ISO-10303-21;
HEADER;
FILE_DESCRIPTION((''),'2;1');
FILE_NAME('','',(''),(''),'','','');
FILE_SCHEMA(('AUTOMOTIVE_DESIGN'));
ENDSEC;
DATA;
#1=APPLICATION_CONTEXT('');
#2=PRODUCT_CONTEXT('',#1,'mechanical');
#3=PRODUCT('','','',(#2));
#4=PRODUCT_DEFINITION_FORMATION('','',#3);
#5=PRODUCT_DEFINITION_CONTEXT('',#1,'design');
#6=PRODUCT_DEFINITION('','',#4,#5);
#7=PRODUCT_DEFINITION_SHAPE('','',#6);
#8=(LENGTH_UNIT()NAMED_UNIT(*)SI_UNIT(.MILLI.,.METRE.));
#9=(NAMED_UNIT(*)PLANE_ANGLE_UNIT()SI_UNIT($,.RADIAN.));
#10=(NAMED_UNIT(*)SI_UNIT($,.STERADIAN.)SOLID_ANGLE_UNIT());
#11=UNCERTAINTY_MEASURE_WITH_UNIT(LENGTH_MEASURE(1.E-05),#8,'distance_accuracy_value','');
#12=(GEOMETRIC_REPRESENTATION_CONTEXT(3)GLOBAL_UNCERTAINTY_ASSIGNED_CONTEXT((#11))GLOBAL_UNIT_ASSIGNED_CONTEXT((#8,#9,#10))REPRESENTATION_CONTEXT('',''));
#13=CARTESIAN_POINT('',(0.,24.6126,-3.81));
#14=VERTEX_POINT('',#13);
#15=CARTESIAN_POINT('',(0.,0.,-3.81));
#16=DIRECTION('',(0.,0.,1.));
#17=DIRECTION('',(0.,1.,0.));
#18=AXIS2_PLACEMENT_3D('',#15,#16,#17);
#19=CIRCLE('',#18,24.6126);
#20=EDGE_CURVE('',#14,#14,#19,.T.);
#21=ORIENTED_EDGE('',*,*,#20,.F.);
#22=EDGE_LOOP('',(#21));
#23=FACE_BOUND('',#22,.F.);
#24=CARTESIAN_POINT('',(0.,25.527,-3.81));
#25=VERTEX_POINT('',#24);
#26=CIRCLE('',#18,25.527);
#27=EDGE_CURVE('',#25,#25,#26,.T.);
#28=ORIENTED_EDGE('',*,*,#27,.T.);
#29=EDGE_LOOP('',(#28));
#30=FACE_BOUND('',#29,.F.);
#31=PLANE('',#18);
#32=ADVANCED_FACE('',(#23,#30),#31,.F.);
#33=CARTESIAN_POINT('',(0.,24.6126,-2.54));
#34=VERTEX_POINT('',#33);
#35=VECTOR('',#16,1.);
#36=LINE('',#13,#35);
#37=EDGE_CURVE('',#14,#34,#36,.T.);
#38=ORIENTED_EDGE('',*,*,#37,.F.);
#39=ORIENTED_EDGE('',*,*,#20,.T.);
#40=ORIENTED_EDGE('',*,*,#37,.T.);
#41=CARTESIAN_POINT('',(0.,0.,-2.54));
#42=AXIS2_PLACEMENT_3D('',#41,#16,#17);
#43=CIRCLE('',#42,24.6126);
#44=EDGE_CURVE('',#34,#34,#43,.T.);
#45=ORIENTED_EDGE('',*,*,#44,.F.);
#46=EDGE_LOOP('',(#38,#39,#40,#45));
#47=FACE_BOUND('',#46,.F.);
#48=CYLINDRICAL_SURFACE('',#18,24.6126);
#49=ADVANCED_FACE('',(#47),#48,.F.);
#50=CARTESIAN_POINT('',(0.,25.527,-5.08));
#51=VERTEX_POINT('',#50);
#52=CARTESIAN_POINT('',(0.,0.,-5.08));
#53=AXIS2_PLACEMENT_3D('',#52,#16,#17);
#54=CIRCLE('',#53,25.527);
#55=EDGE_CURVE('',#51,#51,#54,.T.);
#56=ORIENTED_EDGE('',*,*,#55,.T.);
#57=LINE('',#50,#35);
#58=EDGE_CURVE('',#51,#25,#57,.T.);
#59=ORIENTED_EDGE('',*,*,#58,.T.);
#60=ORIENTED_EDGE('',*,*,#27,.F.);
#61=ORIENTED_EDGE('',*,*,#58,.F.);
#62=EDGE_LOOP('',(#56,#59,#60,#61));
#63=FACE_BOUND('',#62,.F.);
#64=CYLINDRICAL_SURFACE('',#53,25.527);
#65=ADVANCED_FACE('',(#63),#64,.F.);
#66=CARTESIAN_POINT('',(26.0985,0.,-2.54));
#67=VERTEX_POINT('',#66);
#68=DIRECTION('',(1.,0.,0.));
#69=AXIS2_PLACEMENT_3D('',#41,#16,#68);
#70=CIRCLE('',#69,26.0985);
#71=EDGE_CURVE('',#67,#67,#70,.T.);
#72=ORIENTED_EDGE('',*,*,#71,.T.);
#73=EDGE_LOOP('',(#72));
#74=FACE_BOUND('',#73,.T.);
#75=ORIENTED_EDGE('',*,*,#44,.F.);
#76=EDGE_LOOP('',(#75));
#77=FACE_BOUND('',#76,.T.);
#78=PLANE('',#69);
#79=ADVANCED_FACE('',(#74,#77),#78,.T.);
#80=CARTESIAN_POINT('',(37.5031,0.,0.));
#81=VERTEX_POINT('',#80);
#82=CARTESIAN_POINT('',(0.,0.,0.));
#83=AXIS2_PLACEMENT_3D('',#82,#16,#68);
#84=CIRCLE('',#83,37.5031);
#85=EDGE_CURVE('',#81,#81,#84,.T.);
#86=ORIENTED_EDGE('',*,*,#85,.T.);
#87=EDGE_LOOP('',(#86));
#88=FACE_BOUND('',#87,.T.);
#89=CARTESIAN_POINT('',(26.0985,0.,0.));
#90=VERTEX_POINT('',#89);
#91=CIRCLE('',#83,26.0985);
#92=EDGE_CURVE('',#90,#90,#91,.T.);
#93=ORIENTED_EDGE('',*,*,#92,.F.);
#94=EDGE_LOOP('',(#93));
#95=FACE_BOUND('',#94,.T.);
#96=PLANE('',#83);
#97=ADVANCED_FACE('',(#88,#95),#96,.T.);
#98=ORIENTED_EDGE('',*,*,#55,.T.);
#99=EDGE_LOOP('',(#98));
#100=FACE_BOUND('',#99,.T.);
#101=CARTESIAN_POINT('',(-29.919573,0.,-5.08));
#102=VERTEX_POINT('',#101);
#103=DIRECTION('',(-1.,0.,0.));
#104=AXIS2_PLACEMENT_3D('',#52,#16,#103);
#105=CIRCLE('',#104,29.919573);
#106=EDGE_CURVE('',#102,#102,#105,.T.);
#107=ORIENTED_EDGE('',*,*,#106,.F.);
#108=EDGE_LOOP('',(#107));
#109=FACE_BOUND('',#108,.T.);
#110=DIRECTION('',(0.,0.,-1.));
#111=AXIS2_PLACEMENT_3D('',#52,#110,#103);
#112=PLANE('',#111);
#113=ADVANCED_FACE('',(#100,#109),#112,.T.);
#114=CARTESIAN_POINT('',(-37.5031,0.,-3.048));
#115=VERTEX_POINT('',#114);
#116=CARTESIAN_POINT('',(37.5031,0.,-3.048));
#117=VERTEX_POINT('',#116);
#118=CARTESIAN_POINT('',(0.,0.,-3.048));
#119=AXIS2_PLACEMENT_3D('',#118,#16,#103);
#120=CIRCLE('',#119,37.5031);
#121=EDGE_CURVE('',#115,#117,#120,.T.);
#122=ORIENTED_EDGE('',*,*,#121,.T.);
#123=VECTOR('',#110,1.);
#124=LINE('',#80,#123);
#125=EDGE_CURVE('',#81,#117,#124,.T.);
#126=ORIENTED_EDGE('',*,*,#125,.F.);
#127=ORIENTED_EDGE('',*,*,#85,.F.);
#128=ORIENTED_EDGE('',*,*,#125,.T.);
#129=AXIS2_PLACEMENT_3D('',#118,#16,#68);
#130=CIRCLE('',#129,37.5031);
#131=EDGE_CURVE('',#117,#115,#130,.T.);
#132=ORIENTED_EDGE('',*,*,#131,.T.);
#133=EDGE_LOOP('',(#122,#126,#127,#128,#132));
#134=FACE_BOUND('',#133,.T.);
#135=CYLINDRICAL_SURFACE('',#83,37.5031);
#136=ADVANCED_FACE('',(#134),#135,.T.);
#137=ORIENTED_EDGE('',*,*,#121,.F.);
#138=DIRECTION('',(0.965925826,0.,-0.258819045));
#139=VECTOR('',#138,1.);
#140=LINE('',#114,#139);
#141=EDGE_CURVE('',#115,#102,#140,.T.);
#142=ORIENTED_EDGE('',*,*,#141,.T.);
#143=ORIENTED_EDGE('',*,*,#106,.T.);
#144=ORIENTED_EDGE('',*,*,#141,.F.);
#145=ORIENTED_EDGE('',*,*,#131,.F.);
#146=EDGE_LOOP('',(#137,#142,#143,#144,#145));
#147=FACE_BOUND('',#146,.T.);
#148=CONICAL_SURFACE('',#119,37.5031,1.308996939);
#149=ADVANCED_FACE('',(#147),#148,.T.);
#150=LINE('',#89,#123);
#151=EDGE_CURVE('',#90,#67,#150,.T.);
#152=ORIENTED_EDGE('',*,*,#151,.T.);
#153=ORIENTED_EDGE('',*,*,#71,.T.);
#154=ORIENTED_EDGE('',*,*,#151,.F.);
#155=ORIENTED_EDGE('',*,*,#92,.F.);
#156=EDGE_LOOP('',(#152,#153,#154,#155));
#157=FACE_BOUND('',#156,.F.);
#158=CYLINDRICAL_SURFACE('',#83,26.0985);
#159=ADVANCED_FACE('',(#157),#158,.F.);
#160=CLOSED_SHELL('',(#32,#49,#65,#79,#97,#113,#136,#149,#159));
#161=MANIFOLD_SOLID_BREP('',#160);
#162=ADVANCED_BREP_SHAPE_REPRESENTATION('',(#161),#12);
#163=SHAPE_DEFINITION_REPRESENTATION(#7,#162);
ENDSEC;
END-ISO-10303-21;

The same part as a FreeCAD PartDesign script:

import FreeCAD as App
import Part
import Sketcher
Q = App.Units.Quantity

doc = App.newDocument("Part")
body = doc.addObject("PartDesign::Body", "Body")

sketch1 = body.newObject("Sketcher::SketchObject", "Sketch")
sketch1.AttachmentSupport = (doc.getObject("XY_Plane"), [""])
sketch1.MapMode = "FlatFace"
sketch1.addGeometry(Part.Circle(App.Vector(0, 0, 0), App.Vector(0, 0, 1), 38), False)
sketch1.addConstraint(Sketcher.Constraint("Coincident", 0, 3, -1, 1))
sketch1.addConstraint(Sketcher.Constraint("Diameter", 0, Q("2.953 in")))
pad1 = body.newObject("PartDesign::Pad", "Pad")
pad1.Profile = sketch1
pad1.Length = Q("0.12 in")
pad1.Reversed = True

sketch2 = body.newObject("Sketcher::SketchObject", "Sketch001")
sketch2.AttachmentSupport = (doc.getObject("XY_Plane"), [""])
sketch2.MapMode = "FlatFace"
sketch2.AttachmentOffset = App.Placement(App.Vector(0, 0, -0.12 * 25.4), App.Rotation())
sketch2.addGeometry(Part.Circle(App.Vector(0, 0, 0), App.Vector(0, 0, 1), 38), False)
sketch2.addConstraint(Sketcher.Constraint("Coincident", 0, 3, -1, 1))
sketch2.addConstraint(Sketcher.Constraint("Diameter", 0, Q("2.953 in")))
pad2 = body.newObject("PartDesign::Pad", "Pad001")
pad2.Profile = sketch2
pad2.Length = Q("0.08 in")
pad2.Reversed = True
pad2.TaperAngle = -75

sketch3 = body.newObject("Sketcher::SketchObject", "Sketch002")
sketch3.AttachmentSupport = (doc.getObject("XY_Plane"), [""])
sketch3.MapMode = "FlatFace"
sketch3.addGeometry(Part.Circle(App.Vector(0, 0, 0), App.Vector(0, 0, 1), 26), False)
sketch3.addConstraint(Sketcher.Constraint("Coincident", 0, 3, -1, 1))
sketch3.addConstraint(Sketcher.Constraint("Diameter", 0, Q("2.055 in")))
pocket1 = body.newObject("PartDesign::Pocket", "Pocket")
pocket1.Profile = sketch3
pocket1.Length = Q("0.1 in")

sketch4 = body.newObject("Sketcher::SketchObject", "Sketch003")
sketch4.AttachmentSupport = (doc.getObject("XY_Plane"), [""])
sketch4.MapMode = "FlatFace"
sketch4.AttachmentOffset = App.Placement(App.Vector(0, 0, -0.2 * 25.4), App.Rotation())
sketch4.addGeometry(Part.Circle(App.Vector(0, 0, 0), App.Vector(0, 0, 1), 25), False)
sketch4.addConstraint(Sketcher.Constraint("Coincident", 0, 3, -1, 1))
sketch4.addConstraint(Sketcher.Constraint("Diameter", 0, Q("1.938 in")))
doc.recompute()
hole = body.newObject("PartDesign::Hole", "Hole")
hole.Profile = sketch4
hole.ThreadType = "None"
hole.Diameter = Q("1.938 in")
hole.DepthType = "ThroughAll"
hole.HoleCutType = "Counterbore"
hole.HoleCutDiameter = Q("2.01 in")
hole.HoleCutDepth = Q("0.05 in")
hole.Reversed = True

doc.recompute()
